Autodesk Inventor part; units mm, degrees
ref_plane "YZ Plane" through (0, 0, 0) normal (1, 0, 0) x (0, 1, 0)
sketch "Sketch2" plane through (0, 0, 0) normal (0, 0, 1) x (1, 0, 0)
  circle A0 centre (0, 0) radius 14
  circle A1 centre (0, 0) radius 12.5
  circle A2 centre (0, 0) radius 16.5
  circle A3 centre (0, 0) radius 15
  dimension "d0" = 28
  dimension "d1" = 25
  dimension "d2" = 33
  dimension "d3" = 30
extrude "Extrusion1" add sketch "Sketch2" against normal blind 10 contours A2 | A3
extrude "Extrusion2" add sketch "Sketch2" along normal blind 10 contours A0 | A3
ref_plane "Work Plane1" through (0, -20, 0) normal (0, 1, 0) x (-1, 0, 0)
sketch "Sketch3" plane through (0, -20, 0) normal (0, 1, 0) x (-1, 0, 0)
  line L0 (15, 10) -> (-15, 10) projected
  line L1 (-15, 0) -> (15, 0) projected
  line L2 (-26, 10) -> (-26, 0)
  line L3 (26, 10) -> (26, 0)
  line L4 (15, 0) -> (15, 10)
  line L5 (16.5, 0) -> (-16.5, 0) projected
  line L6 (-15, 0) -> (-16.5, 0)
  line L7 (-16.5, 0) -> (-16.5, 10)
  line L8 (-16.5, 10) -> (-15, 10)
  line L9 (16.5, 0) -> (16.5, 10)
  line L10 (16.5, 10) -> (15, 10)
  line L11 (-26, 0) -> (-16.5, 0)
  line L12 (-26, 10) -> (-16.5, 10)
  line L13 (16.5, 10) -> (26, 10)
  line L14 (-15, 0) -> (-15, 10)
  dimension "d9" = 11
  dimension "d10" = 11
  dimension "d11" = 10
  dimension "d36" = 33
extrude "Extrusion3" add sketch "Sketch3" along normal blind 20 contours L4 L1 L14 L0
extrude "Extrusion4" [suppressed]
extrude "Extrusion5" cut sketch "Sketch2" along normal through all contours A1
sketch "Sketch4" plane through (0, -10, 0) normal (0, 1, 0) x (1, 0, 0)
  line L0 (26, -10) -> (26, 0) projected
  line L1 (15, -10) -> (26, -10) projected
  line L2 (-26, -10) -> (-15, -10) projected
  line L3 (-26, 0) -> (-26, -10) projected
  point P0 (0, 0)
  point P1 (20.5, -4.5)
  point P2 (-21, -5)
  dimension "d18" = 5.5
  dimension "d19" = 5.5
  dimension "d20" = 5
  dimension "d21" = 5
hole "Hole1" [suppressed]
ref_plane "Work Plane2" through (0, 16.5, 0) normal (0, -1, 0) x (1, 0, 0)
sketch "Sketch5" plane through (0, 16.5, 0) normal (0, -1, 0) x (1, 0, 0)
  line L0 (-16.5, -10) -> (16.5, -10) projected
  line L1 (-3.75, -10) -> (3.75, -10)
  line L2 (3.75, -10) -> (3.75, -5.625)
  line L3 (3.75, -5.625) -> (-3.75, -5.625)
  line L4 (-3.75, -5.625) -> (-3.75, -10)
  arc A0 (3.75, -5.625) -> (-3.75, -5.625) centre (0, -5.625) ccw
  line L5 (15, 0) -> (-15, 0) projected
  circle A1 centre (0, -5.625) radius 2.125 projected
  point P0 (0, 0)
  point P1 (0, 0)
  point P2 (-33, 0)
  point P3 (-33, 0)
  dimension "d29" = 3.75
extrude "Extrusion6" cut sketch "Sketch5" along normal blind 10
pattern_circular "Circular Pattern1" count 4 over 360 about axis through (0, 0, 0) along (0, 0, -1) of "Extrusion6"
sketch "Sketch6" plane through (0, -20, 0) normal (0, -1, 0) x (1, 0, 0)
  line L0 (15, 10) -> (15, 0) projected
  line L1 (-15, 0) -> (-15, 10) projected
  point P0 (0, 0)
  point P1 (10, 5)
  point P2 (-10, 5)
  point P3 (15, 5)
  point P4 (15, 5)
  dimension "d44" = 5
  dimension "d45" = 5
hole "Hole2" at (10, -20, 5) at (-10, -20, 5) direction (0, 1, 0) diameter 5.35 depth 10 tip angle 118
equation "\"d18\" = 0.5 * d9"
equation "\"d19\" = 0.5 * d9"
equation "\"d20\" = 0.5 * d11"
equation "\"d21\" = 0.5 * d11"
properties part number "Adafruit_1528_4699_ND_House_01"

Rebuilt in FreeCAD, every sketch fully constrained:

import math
import FreeCAD as App
import Part
import Sketcher
Q = App.Units.Quantity


def add_polygon(sketch, points):
    """Adds a closed chain of lines whose ends are joined by coincident constraints."""
    first, n = sketch.GeometryCount, len(points)
    for a, b in zip(points, points[1:] + points[:1]):
        sketch.addGeometry(Part.LineSegment(App.Vector(*a, 0), App.Vector(*b, 0)), False)
    for i in range(n):
        sketch.addConstraint(Sketcher.Constraint("Coincident", first + i, 2, first + (i + 1) % n, 1))

doc = App.newDocument("Part")
body = doc.addObject("PartDesign::Body", "Body")

# Sketch on XY plane
sketch1 = doc.addObject("Sketcher::SketchObject", "Sketch")
body.addObject(sketch1)
sketch1.AttachmentSupport = (doc.XY_Plane, [""])
sketch1.MapMode = "FlatFace"
sketch1.addGeometry(Part.Circle(App.Vector(0, 0, 0), App.Vector(0, 0, 1), 16.5), False)
sketch1.addGeometry(Part.Circle(App.Vector(0, 0, 0), App.Vector(0, 0, 1), 14), False)
sketch1.addConstraint(Sketcher.Constraint("Coincident", 0, 3, -1, 1))
sketch1.addConstraint(Sketcher.Constraint("Coincident", 1, 3, -1, 1))
sketch1.addConstraint(Sketcher.Constraint("Diameter", 0, Q("33 mm")))
sketch1.addConstraint(Sketcher.Constraint("Diameter", 1, Q("28 mm")))
pad1 = doc.addObject("PartDesign::Pad", "Pad")
body.addObject(pad1)
pad1.Profile = sketch1
pad1.Length = 10
pad1.Reversed = True

# Sketch on XY plane
sketch2 = doc.addObject("Sketcher::SketchObject", "Sketch001")
body.addObject(sketch2)
sketch2.AttachmentSupport = (doc.XY_Plane, [""])
sketch2.MapMode = "FlatFace"
sketch2.addGeometry(Part.Circle(App.Vector(0, 0, 0), App.Vector(0, 0, 1), 15), False)
sketch2.addGeometry(Part.Circle(App.Vector(0, 0, 0), App.Vector(0, 0, 1), 12.5), False)
sketch2.addConstraint(Sketcher.Constraint("Coincident", 0, 3, -1, 1))
sketch2.addConstraint(Sketcher.Constraint("Coincident", 1, 3, -1, 1))
sketch2.addConstraint(Sketcher.Constraint("Diameter", 0, Q("30 mm")))
sketch2.addConstraint(Sketcher.Constraint("Diameter", 1, Q("25 mm")))
pad2 = doc.addObject("PartDesign::Pad", "Pad001")
body.addObject(pad2)
pad2.Profile = sketch2
pad2.Length = 10

# Sketch on XZ plane
sketch3 = doc.addObject("Sketcher::SketchObject", "Sketch002")
body.addObject(sketch3)
sketch3.AttachmentSupport = (doc.XZ_Plane, [""])
sketch3.MapMode = "FlatFace"
sketch3.AttachmentOffset = App.Placement(App.Vector(0, 0, 20), App.Rotation())
add_polygon(sketch3, [(-15, 0), (-15, 10), (15, 10), (15, 0)])  # lines 0-3
sketch3.addConstraint(Sketcher.Constraint("Vertical", 0))
sketch3.addConstraint(Sketcher.Constraint("Horizontal", 1))
sketch3.addConstraint(Sketcher.Constraint("Vertical", 2))
sketch3.addConstraint(Sketcher.Constraint("Horizontal", 3))
sketch3.addConstraint(Sketcher.Constraint("Symmetric", 2, 2, 3, 2, -1, 1))
sketch3.addConstraint(Sketcher.Constraint("DistanceY", 0, 1, 0, 2, Q("10 mm")))
sketch3.addConstraint(Sketcher.Constraint("DistanceX", 1, 1, 1, 2, Q("30 mm")))
pad3 = doc.addObject("PartDesign::Pad", "Pad002")
body.addObject(pad3)
pad3.Profile = sketch3
pad3.Length = 20
pad3.Reversed = True

# Sketch on XY plane
sketch4 = doc.addObject("Sketcher::SketchObject", "Sketch003")
body.addObject(sketch4)
sketch4.AttachmentSupport = (doc.XY_Plane, [""])
sketch4.MapMode = "FlatFace"
sketch4.addGeometry(Part.Circle(App.Vector(0, 0, 0), App.Vector(0, 0, 1), 12.5), False)
sketch4.addConstraint(Sketcher.Constraint("Coincident", 0, 3, -1, 1))
sketch4.addConstraint(Sketcher.Constraint("Diameter", 0, Q("25 mm")))
pocket1 = doc.addObject("PartDesign::Pocket", "Pocket")
body.addObject(pocket1)
pocket1.Profile = sketch4
pocket1.Type = "ThroughAll"
pocket1.Reversed = True

# Sketch on XZ plane
sketch5 = doc.addObject("Sketcher::SketchObject", "Sketch004")
body.addObject(sketch5)
sketch5.AttachmentSupport = (doc.XZ_Plane, [""])
sketch5.MapMode = "FlatFace"
sketch5.AttachmentOffset = App.Placement(App.Vector(0, 0, -16.5), App.Rotation())
sketch5.addGeometry(Part.LineSegment(App.Vector(-3.75, -5.625, 0), App.Vector(-3.75, -10, 0)), False)
sketch5.addGeometry(Part.LineSegment(App.Vector(-3.75, -10, 0), App.Vector(3.75, -10, 0)), False)
sketch5.addGeometry(Part.LineSegment(App.Vector(3.75, -10, 0), App.Vector(3.75, -5.625, 0)), False)
sketch5.addGeometry(Part.ArcOfCircle(Part.Circle(App.Vector(0, -5.625, 0), App.Vector(0, 0, 1), 3.75), math.radians(0), math.radians(180)), False)
sketch5.addConstraint(Sketcher.Constraint("Coincident", 0, 2, 1, 1))
sketch5.addConstraint(Sketcher.Constraint("Coincident", 1, 2, 2, 1))
sketch5.addConstraint(Sketcher.Constraint("Tangent", 2, 2, 3, 1))
sketch5.addConstraint(Sketcher.Constraint("Tangent", 3, 2, 0, 1))
sketch5.addConstraint(Sketcher.Constraint("Vertical", 0))
sketch5.addConstraint(Sketcher.Constraint("Horizontal", 1))
sketch5.addConstraint(Sketcher.Constraint("Vertical", 2))
sketch5.addConstraint(Sketcher.Constraint("PointOnObject", 3, 3, -2))
sketch5.addConstraint(Sketcher.Constraint("Radius", 3, Q("3.75 mm")))
sketch5.addConstraint(Sketcher.Constraint("DistanceY", 0, 2, -1, 1, Q("10 mm")))
sketch5.addConstraint(Sketcher.Constraint("DistanceY", 0, 2, 0, 1, Q("4.375 mm")))
pocket2 = doc.addObject("PartDesign::Pocket", "Pocket001")
body.addObject(pocket2)
pocket2.Profile = sketch5
pocket2.Length = 10
pocket2.Reversed = True
doc.recompute()

polarpattern = doc.addObject("PartDesign::PolarPattern", "PolarPattern")
body.addObject(polarpattern)
polarpattern.Originals = [pocket2]
polarpattern.Axis = (doc.Z_Axis, [""])
polarpattern.Angle = 360
polarpattern.Occurrences = 4
body.Tip = polarpattern

# Sketch on XZ plane
sketch6 = doc.addObject("Sketcher::SketchObject", "Sketch005")
body.addObject(sketch6)
sketch6.AttachmentSupport = (doc.XZ_Plane, [""])
sketch6.MapMode = "FlatFace"
sketch6.AttachmentOffset = App.Placement(App.Vector(0, 0, 20), App.Rotation())
sketch6.addGeometry(Part.Circle(App.Vector(10, 5, 0), App.Vector(0, 0, 1), 2.675), False)
sketch6.addGeometry(Part.Circle(App.Vector(-10, 5, 0), App.Vector(0, 0, 1), 2.675), False)
sketch6.addConstraint(Sketcher.Constraint("Equal", 0, 1))
sketch6.addConstraint(Sketcher.Constraint("Symmetric", 0, 3, 1, 3, -2))
sketch6.addConstraint(Sketcher.Constraint("Diameter", 0, Q("5.35 mm")))
sketch6.addConstraint(Sketcher.Constraint("DistanceX", -1, 1, 0, 3, Q("10 mm")))
sketch6.addConstraint(Sketcher.Constraint("DistanceY", -1, 1, 0, 3, Q("5 mm")))
doc.recompute()
hole = doc.addObject("PartDesign::Hole", "Hole")
body.addObject(hole)
hole.Profile = sketch6
hole.ThreadType = "None"
hole.Diameter = 5.35
hole.DepthType = "Dimension"
hole.Depth = 10
hole.DrillPoint = "Angled"
hole.DrillPointAngle = 118

doc.recompute()
